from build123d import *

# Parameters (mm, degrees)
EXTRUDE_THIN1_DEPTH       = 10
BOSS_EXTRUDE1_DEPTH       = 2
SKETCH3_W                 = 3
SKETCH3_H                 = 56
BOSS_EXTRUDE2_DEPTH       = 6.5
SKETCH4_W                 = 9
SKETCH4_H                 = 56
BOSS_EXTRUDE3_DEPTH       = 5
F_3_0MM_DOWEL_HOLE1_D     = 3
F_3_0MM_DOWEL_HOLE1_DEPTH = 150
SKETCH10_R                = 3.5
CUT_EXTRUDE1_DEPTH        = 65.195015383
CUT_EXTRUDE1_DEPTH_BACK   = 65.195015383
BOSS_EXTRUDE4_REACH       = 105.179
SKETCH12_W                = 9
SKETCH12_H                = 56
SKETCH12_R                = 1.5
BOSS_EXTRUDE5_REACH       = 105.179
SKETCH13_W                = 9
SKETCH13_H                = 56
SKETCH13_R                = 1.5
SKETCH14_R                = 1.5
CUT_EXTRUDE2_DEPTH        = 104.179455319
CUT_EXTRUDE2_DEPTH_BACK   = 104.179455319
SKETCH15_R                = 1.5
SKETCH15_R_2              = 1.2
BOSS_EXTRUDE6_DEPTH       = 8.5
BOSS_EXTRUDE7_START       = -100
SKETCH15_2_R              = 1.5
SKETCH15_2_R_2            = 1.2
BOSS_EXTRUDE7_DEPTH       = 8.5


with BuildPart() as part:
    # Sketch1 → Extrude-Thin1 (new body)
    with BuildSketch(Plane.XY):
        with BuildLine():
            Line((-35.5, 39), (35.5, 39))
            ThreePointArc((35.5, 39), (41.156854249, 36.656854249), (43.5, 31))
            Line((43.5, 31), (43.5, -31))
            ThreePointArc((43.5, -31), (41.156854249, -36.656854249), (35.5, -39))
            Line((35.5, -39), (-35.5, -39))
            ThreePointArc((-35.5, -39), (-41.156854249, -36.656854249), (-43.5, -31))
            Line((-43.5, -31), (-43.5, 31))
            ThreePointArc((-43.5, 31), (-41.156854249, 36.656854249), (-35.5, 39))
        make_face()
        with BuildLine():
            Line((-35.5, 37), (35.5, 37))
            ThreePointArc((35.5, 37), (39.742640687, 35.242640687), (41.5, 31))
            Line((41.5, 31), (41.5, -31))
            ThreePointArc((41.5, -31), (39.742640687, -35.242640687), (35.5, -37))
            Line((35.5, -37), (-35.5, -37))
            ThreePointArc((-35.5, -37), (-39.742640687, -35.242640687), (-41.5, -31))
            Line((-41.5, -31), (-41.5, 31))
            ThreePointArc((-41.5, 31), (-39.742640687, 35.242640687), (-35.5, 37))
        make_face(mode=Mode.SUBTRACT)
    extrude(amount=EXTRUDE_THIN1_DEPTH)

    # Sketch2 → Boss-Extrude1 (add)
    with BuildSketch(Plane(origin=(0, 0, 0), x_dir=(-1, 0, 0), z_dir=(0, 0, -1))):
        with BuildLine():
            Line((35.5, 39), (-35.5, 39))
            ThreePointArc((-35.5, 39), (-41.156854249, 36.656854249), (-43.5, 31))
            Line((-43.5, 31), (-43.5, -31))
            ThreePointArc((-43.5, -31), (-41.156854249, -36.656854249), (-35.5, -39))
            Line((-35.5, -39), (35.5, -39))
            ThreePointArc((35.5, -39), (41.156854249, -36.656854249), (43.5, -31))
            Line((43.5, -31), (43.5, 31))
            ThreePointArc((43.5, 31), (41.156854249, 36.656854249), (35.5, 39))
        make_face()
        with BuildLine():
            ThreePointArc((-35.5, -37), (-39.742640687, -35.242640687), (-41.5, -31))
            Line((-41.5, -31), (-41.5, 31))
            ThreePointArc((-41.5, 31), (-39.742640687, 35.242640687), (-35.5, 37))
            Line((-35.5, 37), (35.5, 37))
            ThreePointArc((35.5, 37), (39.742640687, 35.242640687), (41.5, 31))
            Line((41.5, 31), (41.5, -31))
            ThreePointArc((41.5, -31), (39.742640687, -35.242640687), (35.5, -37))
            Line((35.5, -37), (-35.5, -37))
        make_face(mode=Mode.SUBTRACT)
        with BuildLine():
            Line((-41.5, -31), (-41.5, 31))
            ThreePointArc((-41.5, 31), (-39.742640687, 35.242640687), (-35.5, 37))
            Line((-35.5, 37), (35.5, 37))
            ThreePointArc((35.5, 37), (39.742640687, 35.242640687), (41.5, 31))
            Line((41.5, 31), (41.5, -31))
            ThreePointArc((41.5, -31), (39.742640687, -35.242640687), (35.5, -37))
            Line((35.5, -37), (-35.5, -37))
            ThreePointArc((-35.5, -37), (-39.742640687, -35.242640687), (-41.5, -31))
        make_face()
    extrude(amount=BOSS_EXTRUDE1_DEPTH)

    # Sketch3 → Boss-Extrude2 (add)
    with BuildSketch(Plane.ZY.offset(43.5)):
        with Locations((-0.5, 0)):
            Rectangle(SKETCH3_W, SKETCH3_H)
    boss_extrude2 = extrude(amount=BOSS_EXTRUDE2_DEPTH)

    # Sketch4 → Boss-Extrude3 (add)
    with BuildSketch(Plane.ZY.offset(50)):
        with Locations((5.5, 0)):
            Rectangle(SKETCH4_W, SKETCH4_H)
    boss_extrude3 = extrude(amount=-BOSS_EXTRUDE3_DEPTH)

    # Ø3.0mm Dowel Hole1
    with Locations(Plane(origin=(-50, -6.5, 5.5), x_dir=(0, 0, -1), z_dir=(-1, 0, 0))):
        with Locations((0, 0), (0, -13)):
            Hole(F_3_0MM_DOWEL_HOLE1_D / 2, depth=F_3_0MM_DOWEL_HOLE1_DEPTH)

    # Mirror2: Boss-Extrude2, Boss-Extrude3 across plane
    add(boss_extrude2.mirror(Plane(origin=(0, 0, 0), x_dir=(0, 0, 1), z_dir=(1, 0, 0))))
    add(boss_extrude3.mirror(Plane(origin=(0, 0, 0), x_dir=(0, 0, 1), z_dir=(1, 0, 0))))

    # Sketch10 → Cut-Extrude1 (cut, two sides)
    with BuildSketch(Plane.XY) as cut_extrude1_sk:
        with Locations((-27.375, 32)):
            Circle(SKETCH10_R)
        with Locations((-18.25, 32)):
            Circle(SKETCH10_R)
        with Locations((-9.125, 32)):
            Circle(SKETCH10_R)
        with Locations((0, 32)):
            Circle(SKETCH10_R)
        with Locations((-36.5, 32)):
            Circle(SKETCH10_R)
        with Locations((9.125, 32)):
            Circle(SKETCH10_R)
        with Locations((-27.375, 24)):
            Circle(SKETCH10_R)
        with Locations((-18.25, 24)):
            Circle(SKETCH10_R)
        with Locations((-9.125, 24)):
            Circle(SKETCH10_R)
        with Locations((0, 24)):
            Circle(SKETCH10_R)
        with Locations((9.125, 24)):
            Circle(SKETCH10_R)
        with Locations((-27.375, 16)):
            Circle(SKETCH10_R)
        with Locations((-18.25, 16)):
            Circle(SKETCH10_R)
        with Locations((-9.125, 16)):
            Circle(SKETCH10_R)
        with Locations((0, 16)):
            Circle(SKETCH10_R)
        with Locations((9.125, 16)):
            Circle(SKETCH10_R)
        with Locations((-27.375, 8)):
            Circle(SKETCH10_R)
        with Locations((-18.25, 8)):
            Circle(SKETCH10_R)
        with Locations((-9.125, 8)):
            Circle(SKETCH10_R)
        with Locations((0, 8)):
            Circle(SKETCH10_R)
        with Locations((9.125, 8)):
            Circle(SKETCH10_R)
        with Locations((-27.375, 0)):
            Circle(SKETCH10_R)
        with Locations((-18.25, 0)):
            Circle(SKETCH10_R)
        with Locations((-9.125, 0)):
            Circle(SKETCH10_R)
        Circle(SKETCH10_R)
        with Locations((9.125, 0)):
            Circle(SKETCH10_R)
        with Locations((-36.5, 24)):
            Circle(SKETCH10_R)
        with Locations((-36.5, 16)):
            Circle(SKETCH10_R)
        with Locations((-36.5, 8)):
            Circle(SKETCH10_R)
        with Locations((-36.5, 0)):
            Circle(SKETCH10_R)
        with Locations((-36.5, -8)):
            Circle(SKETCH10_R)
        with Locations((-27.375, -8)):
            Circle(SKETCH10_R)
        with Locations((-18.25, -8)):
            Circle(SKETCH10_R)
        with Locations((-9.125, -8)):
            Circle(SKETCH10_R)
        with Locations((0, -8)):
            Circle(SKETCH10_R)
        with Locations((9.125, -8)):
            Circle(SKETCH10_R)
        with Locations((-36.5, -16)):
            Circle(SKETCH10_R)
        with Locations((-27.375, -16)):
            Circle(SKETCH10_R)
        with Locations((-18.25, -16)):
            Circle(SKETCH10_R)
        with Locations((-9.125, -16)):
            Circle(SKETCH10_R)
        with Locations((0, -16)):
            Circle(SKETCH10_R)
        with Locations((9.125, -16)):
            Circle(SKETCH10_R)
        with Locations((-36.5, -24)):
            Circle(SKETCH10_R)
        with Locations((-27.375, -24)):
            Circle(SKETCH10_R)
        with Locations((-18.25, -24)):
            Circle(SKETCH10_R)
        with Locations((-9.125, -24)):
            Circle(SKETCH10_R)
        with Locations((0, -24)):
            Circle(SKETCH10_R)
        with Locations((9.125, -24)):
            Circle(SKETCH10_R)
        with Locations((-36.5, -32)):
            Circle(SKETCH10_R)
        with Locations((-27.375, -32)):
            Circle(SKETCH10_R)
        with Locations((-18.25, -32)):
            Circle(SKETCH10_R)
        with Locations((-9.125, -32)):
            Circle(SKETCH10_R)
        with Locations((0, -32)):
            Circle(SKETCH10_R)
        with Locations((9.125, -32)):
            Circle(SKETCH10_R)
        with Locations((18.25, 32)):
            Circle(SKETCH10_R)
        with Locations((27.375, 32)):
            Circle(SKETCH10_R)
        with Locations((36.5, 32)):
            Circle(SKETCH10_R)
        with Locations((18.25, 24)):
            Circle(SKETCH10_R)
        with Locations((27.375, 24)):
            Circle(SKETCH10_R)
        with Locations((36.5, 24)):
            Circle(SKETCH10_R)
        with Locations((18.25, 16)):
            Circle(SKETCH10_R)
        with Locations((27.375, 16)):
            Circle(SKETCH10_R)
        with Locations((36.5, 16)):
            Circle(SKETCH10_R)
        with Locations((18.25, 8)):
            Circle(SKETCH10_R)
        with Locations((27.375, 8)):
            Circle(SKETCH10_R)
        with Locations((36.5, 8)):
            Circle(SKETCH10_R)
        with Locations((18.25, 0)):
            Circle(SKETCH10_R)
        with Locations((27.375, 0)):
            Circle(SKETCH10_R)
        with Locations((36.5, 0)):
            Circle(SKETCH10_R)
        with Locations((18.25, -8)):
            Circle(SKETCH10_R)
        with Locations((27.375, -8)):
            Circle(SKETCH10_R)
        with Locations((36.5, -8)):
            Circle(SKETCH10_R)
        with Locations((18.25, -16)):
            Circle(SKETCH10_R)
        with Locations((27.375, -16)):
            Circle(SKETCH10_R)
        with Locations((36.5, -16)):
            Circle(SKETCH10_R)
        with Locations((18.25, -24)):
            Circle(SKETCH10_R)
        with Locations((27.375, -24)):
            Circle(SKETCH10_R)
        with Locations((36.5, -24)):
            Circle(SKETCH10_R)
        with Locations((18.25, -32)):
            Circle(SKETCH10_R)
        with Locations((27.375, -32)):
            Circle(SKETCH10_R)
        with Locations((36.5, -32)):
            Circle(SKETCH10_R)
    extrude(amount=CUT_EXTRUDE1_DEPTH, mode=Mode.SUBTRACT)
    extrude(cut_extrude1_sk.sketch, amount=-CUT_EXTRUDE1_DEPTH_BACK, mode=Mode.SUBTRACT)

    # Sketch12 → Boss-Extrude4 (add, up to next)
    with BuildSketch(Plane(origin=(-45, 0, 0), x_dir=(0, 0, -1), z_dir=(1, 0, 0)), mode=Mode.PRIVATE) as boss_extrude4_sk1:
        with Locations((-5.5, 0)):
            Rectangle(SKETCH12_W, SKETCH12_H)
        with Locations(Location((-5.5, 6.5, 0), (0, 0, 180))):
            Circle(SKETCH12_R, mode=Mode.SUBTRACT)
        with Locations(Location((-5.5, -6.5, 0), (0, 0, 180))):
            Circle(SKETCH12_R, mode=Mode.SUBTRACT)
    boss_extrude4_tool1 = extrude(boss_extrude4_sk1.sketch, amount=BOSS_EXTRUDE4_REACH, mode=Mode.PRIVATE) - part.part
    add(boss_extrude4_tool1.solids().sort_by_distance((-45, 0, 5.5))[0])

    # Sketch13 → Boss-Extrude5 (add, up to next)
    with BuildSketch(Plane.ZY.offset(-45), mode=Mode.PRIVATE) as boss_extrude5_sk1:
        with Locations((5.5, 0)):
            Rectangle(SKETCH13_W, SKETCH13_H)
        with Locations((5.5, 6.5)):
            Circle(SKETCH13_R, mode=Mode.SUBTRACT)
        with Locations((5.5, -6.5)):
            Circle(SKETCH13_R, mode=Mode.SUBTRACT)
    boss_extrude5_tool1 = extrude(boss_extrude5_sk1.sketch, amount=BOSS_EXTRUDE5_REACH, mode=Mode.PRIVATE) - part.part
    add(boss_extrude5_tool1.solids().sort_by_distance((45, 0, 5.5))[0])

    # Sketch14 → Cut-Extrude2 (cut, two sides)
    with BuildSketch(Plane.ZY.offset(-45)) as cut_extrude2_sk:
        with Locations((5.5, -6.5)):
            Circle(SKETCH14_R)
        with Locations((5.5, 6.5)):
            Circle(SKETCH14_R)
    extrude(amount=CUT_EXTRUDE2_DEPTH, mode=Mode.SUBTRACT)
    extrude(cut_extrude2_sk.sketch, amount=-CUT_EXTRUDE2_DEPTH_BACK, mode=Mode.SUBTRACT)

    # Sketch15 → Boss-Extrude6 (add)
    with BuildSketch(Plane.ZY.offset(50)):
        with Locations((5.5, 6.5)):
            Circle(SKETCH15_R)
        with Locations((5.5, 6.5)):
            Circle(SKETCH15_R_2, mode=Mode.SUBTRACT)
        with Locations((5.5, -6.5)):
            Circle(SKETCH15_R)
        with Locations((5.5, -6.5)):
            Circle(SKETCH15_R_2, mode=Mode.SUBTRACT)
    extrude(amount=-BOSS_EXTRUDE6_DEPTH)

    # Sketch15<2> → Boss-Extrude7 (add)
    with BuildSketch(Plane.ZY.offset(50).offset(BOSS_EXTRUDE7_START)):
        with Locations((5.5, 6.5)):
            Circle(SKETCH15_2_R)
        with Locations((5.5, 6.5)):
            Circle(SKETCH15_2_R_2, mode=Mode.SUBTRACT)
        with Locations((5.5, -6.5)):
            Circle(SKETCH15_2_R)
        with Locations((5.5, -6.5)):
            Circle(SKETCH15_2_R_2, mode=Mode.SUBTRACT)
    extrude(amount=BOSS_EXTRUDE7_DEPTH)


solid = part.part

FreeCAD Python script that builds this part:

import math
import FreeCAD as App
import Part
import Sketcher
from FreeCAD import Vector


def add_polygon(sketch, points):
    """Adds a closed chain of lines whose ends are joined by coincident constraints."""
    first, n = sketch.GeometryCount, len(points)
    for a, b in zip(points, points[1:] + points[:1]):
        sketch.addGeometry(Part.LineSegment(App.Vector(*a, 0), App.Vector(*b, 0)), False)
    for i in range(n):
        sketch.addConstraint(Sketcher.Constraint("Coincident", first + i, 2, first + (i + 1) % n, 1))

doc = App.newDocument("Part")
body = doc.addObject("PartDesign::Body", "Body")

# Sketch on XY plane
sketch1 = body.newObject("Sketcher::SketchObject", "Sketch")
sketch1.AttachmentSupport = (doc.getObject("XY_Plane"), [""])
sketch1.MapMode = "FlatFace"
sketch1.addGeometry([
    Part.LineSegment(Vector(35.5, 39, 0), Vector(-35.5, 39, 0)),  # 0
    Part.ArcOfCircle(Part.Circle(Vector(-35.5, 31, 0), Vector(0, 0, 1), 8), math.radians(90), math.radians(180)),  # 1
    Part.LineSegment(Vector(-43.5, 31, 0), Vector(-43.5, -31, 0)),  # 2
    Part.ArcOfCircle(Part.Circle(Vector(-35.5, -31, 0), Vector(0, 0, 1), 8), math.radians(-180), math.radians(-90)),  # 3
    Part.LineSegment(Vector(-35.5, -39, 0), Vector(35.5, -39, 0)),  # 4
    Part.ArcOfCircle(Part.Circle(Vector(35.5, -31, 0), Vector(0, 0, 1), 8), math.radians(-90), math.radians(0)),  # 5
    Part.LineSegment(Vector(43.5, -31, 0), Vector(43.5, 31, 0)),  # 6
    Part.ArcOfCircle(Part.Circle(Vector(35.5, 31, 0), Vector(0, 0, 1), 8), math.radians(0), math.radians(90)),  # 7
    Part.LineSegment(Vector(-35.5, 37, 0), Vector(35.5, 37, 0)),  # 8
    Part.ArcOfCircle(Part.Circle(Vector(35.5, 31, 0), Vector(0, 0, 1), 6), math.radians(0), math.radians(90)),  # 9
    Part.LineSegment(Vector(41.5, 31, 0), Vector(41.5, -31, 0)),  # 10
    Part.ArcOfCircle(Part.Circle(Vector(35.5, -31, 0), Vector(0, 0, 1), 6), math.radians(-90), math.radians(0)),  # 11
    Part.LineSegment(Vector(35.5, -37, 0), Vector(-35.5, -37, 0)),  # 12
    Part.ArcOfCircle(Part.Circle(Vector(-35.5, -31, 0), Vector(0, 0, 1), 6), math.radians(180), math.radians(270)),  # 13
    Part.LineSegment(Vector(-41.5, -31, 0), Vector(-41.5, 31, 0)),  # 14
    Part.ArcOfCircle(Part.Circle(Vector(-35.5, 31, 0), Vector(0, 0, 1), 6), math.radians(90), math.radians(180)),  # 15
], False)
sketch1.addConstraint([
    Sketcher.Constraint("Tangent", 0, 2, 1, 1),
    Sketcher.Constraint("Tangent", 1, 2, 2, 1),
    Sketcher.Constraint("Tangent", 2, 2, 3, 1),
    Sketcher.Constraint("Tangent", 3, 2, 4, 1),
    Sketcher.Constraint("Tangent", 4, 2, 5, 1),
    Sketcher.Constraint("Tangent", 5, 2, 6, 1),
    Sketcher.Constraint("Tangent", 6, 2, 7, 1),
    Sketcher.Constraint("Tangent", 7, 2, 0, 1),
    Sketcher.Constraint("Tangent", 8, 2, 9, 2),
    Sketcher.Constraint("Tangent", 9, 1, 10, 1),
    Sketcher.Constraint("Tangent", 10, 2, 11, 2),
    Sketcher.Constraint("Tangent", 11, 1, 12, 1),
    Sketcher.Constraint("Tangent", 12, 2, 13, 2),
    Sketcher.Constraint("Tangent", 13, 1, 14, 1),
    Sketcher.Constraint("Tangent", 14, 2, 15, 2),
    Sketcher.Constraint("Tangent", 15, 1, 8, 1),
    Sketcher.Constraint("Horizontal", 0),
    Sketcher.Constraint("Vertical", 2),
    Sketcher.Constraint("Horizontal", 4),
    Sketcher.Constraint("Vertical", 6),
    Sketcher.Constraint("Horizontal", 8),
    Sketcher.Constraint("Vertical", 10),
    Sketcher.Constraint("Horizontal", 12),
    Sketcher.Constraint("Vertical", 14),
    Sketcher.Constraint("Coincident", 9, 3, 7, 3),
    Sketcher.Constraint("Coincident", 11, 3, 5, 3),
    Sketcher.Constraint("Coincident", 13, 3, 3, 3),
    Sketcher.Constraint("Equal", 1, 3),
    Sketcher.Constraint("Equal", 3, 5),
    Sketcher.Constraint("Equal", 5, 7),
    Sketcher.Constraint("Equal", 13, 15),
    Sketcher.Constraint("Symmetric", 1, 3, 5, 3, -1, 1),
    Sketcher.Constraint("Radius", 1, 8.0),
    Sketcher.Constraint("Radius", 9, 6.0),
    Sketcher.Constraint("DistanceX", 0, 2, 0, 1, 71.0),
    Sketcher.Constraint("DistanceY", 2, 2, 2, 1, 62.0),
])
pad1 = body.newObject("PartDesign::Pad", "Pad")
pad1.Profile = sketch1
pad1.Length = 10

# Sketch on XY plane
sketch2 = body.newObject("Sketcher::SketchObject", "Sketch001")
sketch2.AttachmentSupport = (doc.getObject("XY_Plane"), [""])
sketch2.MapMode = "FlatFace"
sketch2.addGeometry([
    Part.LineSegment(Vector(-35.5, 39, 0), Vector(35.5, 39, 0)),  # 0
    Part.ArcOfCircle(Part.Circle(Vector(35.5, 31, 0), Vector(0, 0, 1), 8), math.radians(0), math.radians(90)),  # 1
    Part.LineSegment(Vector(43.5, 31, 0), Vector(43.5, -31, 0)),  # 2
    Part.ArcOfCircle(Part.Circle(Vector(35.5, -31, 0), Vector(0, 0, 1), 8), math.radians(-90), math.radians(0)),  # 3
    Part.LineSegment(Vector(35.5, -39, 0), Vector(-35.5, -39, 0)),  # 4
    Part.ArcOfCircle(Part.Circle(Vector(-35.5, -31, 0), Vector(0, 0, 1), 8), math.radians(-180), math.radians(-90)),  # 5
    Part.LineSegment(Vector(-43.5, -31, 0), Vector(-43.5, 31, 0)),  # 6
    Part.ArcOfCircle(Part.Circle(Vector(-35.5, 31, 0), Vector(0, 0, 1), 8), math.radians(90), math.radians(180)),  # 7
], False)
sketch2.addConstraint([
    Sketcher.Constraint("Tangent", 0, 2, 1, 2),
    Sketcher.Constraint("Tangent", 1, 1, 2, 1),
    Sketcher.Constraint("Tangent", 2, 2, 3, 2),
    Sketcher.Constraint("Tangent", 3, 1, 4, 1),
    Sketcher.Constraint("Tangent", 4, 2, 5, 2),
    Sketcher.Constraint("Tangent", 5, 1, 6, 1),
    Sketcher.Constraint("Tangent", 6, 2, 7, 2),
    Sketcher.Constraint("Tangent", 7, 1, 0, 1),
    Sketcher.Constraint("Horizontal", 0),
    Sketcher.Constraint("Vertical", 2),
    Sketcher.Constraint("Horizontal", 4),
    Sketcher.Constraint("Vertical", 6),
    Sketcher.Constraint("Equal", 1, 3),
    Sketcher.Constraint("Equal", 3, 5),
    Sketcher.Constraint("Equal", 5, 7),
    Sketcher.Constraint("Symmetric", 1, 3, 5, 3, -1, 1),
    Sketcher.Constraint("Radius", 1, 8.0),
    Sketcher.Constraint("DistanceX", 0, 1, 0, 2, 71.0),
    Sketcher.Constraint("DistanceY", 2, 2, 2, 1, 62.0),
])
pad2 = body.newObject("PartDesign::Pad", "Pad001")
pad2.Profile = sketch2
pad2.Length = 2
pad2.Reversed = True

# Sketch on YZ plane
sketch3 = body.newObject("Sketcher::SketchObject", "Sketch002")
sketch3.AttachmentSupport = (doc.getObject("YZ_Plane"), [""])
sketch3.MapMode = "FlatFace"
sketch3.AttachmentOffset = App.Placement(Vector(0, 0, -43.5), App.Rotation())
add_polygon(sketch3, [(28, -2), (-28, -2), (-28, 1), (28, 1)])  # lines 0-3
sketch3.addConstraint([
    Sketcher.Constraint("Horizontal", 0),
    Sketcher.Constraint("Vertical", 1),
    Sketcher.Constraint("Horizontal", 2),
    Sketcher.Constraint("Vertical", 3),
    Sketcher.Constraint("DistanceX", 0, 2, 0, 1, 56.0),
    Sketcher.Constraint("DistanceY", 1, 1, 1, 2, 3.0),
    Sketcher.Constraint("DistanceX", 0, 2, -1, 1, 28.0),
    Sketcher.Constraint("DistanceY", 0, 2, -1, 1, 2.0),
])
pad3 = body.newObject("PartDesign::Pad", "Pad002")
pad3.Profile = sketch3
pad3.Length = 6.5
pad3.Reversed = True

# Sketch on YZ plane
sketch4 = body.newObject("Sketcher::SketchObject", "Sketch003")
sketch4.AttachmentSupport = (doc.getObject("YZ_Plane"), [""])
sketch4.MapMode = "FlatFace"
sketch4.AttachmentOffset = App.Placement(Vector(0, 0, -50), App.Rotation())
add_polygon(sketch4, [(28, 1), (-28, 1), (-28, 10), (28, 10)])  # lines 0-3
sketch4.addConstraint([
    Sketcher.Constraint("Horizontal", 0),
    Sketcher.Constraint("Vertical", 1),
    Sketcher.Constraint("Horizontal", 2),
    Sketcher.Constraint("Vertical", 3),
    Sketcher.Constraint("DistanceX", 0, 2, 0, 1, 56.0),
    Sketcher.Constraint("DistanceY", 1, 1, 1, 2, 9.0),
    Sketcher.Constraint("DistanceX", 0, 2, -1, 1, 28.0),
    Sketcher.Constraint("DistanceY", -1, 1, 0, 2, 1.0),
])
pad4 = body.newObject("PartDesign::Pad", "Pad003")
pad4.Profile = sketch4
pad4.Length = 5

# Sketch on YZ plane
sketch5 = body.newObject("Sketcher::SketchObject", "Sketch004")
sketch5.AttachmentSupport = (doc.getObject("YZ_Plane"), [""])
sketch5.MapMode = "FlatFace"
sketch5.AttachmentOffset = App.Placement(Vector(0, 0, -50), App.Rotation())
sketch5.addGeometry([
    Part.Circle(Vector(-6.5, 5.5, 0), Vector(0, 0, 1), 1.5),
    Part.Circle(Vector(6.5, 5.5, 0), Vector(0, 0, 1), 1.5),
], False)
sketch5.addConstraint([
    Sketcher.Constraint("Equal", 0, 1),
    Sketcher.Constraint("Symmetric", 0, 3, 1, 3, -2),
    Sketcher.Constraint("Diameter", 0, 3.0),
    Sketcher.Constraint("DistanceX", 0, 3, 1, 3, 13.0),
    Sketcher.Constraint("DistanceY", -1, 1, 0, 3, 5.5),
])
doc.recompute()
hole = body.newObject("PartDesign::Hole", "Hole")
hole.Profile = sketch5
hole.ThreadType = "None"
hole.Diameter = 3
hole.DepthType = "Dimension"
hole.Depth = 150
hole.DrillPoint = "Flat"
hole.Reversed = True
doc.recompute()

mirrored = body.newObject("PartDesign::Mirrored", "Mirrored")
mirrored.Originals = [pad3, pad4]
mirrored.MirrorPlane = (doc.getObject("YZ_Plane"), [""])
body.Tip = mirrored

# Sketch on XY plane
sketch6 = body.newObject("Sketcher::SketchObject", "Sketch005")
sketch6.AttachmentSupport = (doc.getObject("XY_Plane"), [""])
sketch6.MapMode = "FlatFace"
sketch6.addGeometry([
    Part.Circle(Vector(-27.375, 32, 0), Vector(0, 0, 1), 3.5),  # 0
    Part.Circle(Vector(-18.25, 32, 0), Vector(0, 0, 1), 3.5),  # 1
    Part.Circle(Vector(-9.125, 32, 0), Vector(0, 0, 1), 3.5),  # 2
    Part.Circle(Vector(0, 32, 0), Vector(0, 0, 1), 3.5),  # 3
    Part.Circle(Vector(-36.5, 32, 0), Vector(0, 0, 1), 3.5),  # 4
    Part.Circle(Vector(9.125, 32, 0), Vector(0, 0, 1), 3.5),  # 5
    Part.Circle(Vector(-27.375, 24, 0), Vector(0, 0, 1), 3.5),  # 6
    Part.Circle(Vector(-18.25, 24, 0), Vector(0, 0, 1), 3.5),  # 7
    Part.Circle(Vector(-9.125, 24, 0), Vector(0, 0, 1), 3.5),  # 8
    Part.Circle(Vector(0, 24, 0), Vector(0, 0, 1), 3.5),  # 9
    Part.Circle(Vector(9.125, 24, 0), Vector(0, 0, 1), 3.5),  # 10
    Part.Circle(Vector(-27.375, 16, 0), Vector(0, 0, 1), 3.5),  # 11
    Part.Circle(Vector(-18.25, 16, 0), Vector(0, 0, 1), 3.5),  # 12
    Part.Circle(Vector(-9.125, 16, 0), Vector(0, 0, 1), 3.5),  # 13
    Part.Circle(Vector(0, 16, 0), Vector(0, 0, 1), 3.5),  # 14
    Part.Circle(Vector(9.125, 16, 0), Vector(0, 0, 1), 3.5),  # 15
    Part.Circle(Vector(-27.375, 8, 0), Vector(0, 0, 1), 3.5),  # 16
    Part.Circle(Vector(-18.25, 8, 0), Vector(0, 0, 1), 3.5),  # 17
    Part.Circle(Vector(-9.125, 8, 0), Vector(0, 0, 1), 3.5),  # 18
    Part.Circle(Vector(0, 8, 0), Vector(0, 0, 1), 3.5),  # 19
    Part.Circle(Vector(9.125, 8, 0), Vector(0, 0, 1), 3.5),  # 20
    Part.Circle(Vector(-27.375, 0, 0), Vector(0, 0, 1), 3.5),  # 21
    Part.Circle(Vector(-18.25, 0, 0), Vector(0, 0, 1), 3.5),  # 22
    Part.Circle(Vector(-9.125, 0, 0), Vector(0, 0, 1), 3.5),  # 23
    Part.Circle(Vector(0, 0, 0), Vector(0, 0, 1), 3.5),  # 24
    Part.Circle(Vector(9.125, 0, 0), Vector(0, 0, 1), 3.5),  # 25
    Part.Circle(Vector(-36.5, 24, 0), Vector(0, 0, 1), 3.5),  # 26
    Part.Circle(Vector(-36.5, 16, 0), Vector(0, 0, 1), 3.5),  # 27
    Part.Circle(Vector(-36.5, 8, 0), Vector(0, 0, 1), 3.5),  # 28
    Part.Circle(Vector(-36.5, 0, 0), Vector(0, 0, 1), 3.5),  # 29
    Part.Circle(Vector(-36.5, -8, 0), Vector(0, 0, 1), 3.5),  # 30
    Part.Circle(Vector(-27.375, -8, 0), Vector(0, 0, 1), 3.5),  # 31
    Part.Circle(Vector(-18.25, -8, 0), Vector(0, 0, 1), 3.5),  # 32
    Part.Circle(Vector(-9.125, -8, 0), Vector(0, 0, 1), 3.5),  # 33
    Part.Circle(Vector(0, -8, 0), Vector(0, 0, 1), 3.5),  # 34
    Part.Circle(Vector(9.125, -8, 0), Vector(0, 0, 1), 3.5),  # 35
    Part.Circle(Vector(-36.5, -16, 0), Vector(0, 0, 1), 3.5),  # 36
    Part.Circle(Vector(-27.375, -16, 0), Vector(0, 0, 1), 3.5),  # 37
    Part.Circle(Vector(-18.25, -16, 0), Vector(0, 0, 1), 3.5),  # 38
    Part.Circle(Vector(-9.125, -16, 0), Vector(0, 0, 1), 3.5),  # 39
    Part.Circle(Vector(0, -16, 0), Vector(0, 0, 1), 3.5),  # 40
    Part.Circle(Vector(9.125, -16, 0), Vector(0, 0, 1), 3.5),  # 41
    Part.Circle(Vector(-36.5, -24, 0), Vector(0, 0, 1), 3.5),  # 42
    Part.Circle(Vector(-27.375, -24, 0), Vector(0, 0, 1), 3.5),  # 43
    Part.Circle(Vector(-18.25, -24, 0), Vector(0, 0, 1), 3.5),  # 44
    Part.Circle(Vector(-9.125, -24, 0), Vector(0, 0, 1), 3.5),  # 45
    Part.Circle(Vector(0, -24, 0), Vector(0, 0, 1), 3.5),  # 46
    Part.Circle(Vector(9.125, -24, 0), Vector(0, 0, 1), 3.5),  # 47
    Part.Circle(Vector(-36.5, -32, 0), Vector(0, 0, 1), 3.5),  # 48
    Part.Circle(Vector(-27.375, -32, 0), Vector(0, 0, 1), 3.5),  # 49
    Part.Circle(Vector(-18.25, -32, 0), Vector(0, 0, 1), 3.5),  # 50
    Part.Circle(Vector(-9.125, -32, 0), Vector(0, 0, 1), 3.5),  # 51
    Part.Circle(Vector(0, -32, 0), Vector(0, 0, 1), 3.5),  # 52
    Part.Circle(Vector(9.125, -32, 0), Vector(0, 0, 1), 3.5),  # 53
    Part.Circle(Vector(18.25, 32, 0), Vector(0, 0, 1), 3.5),  # 54
    Part.Circle(Vector(27.375, 32, 0), Vector(0, 0, 1), 3.5),  # 55
    Part.Circle(Vector(36.5, 32, 0), Vector(0, 0, 1), 3.5),  # 56
    Part.Circle(Vector(18.25, 24, 0), Vector(0, 0, 1), 3.5),  # 57
    Part.Circle(Vector(27.375, 24, 0), Vector(0, 0, 1), 3.5),  # 58
    Part.Circle(Vector(36.5, 24, 0), Vector(0, 0, 1), 3.5),  # 59
    Part.Circle(Vector(18.25, 16, 0), Vector(0, 0, 1), 3.5),  # 60
    Part.Circle(Vector(27.375, 16, 0), Vector(0, 0, 1), 3.5),  # 61
    Part.Circle(Vector(36.5, 16, 0), Vector(0, 0, 1), 3.5),  # 62
    Part.Circle(Vector(18.25, 8, 0), Vector(0, 0, 1), 3.5),  # 63
    Part.Circle(Vector(27.375, 8, 0), Vector(0, 0, 1), 3.5),  # 64
    Part.Circle(Vector(36.5, 8, 0), Vector(0, 0, 1), 3.5),  # 65
    Part.Circle(Vector(18.25, 0, 0), Vector(0, 0, 1), 3.5),  # 66
    Part.Circle(Vector(27.375, 0, 0), Vector(0, 0, 1), 3.5),  # 67
    Part.Circle(Vector(36.5, 0, 0), Vector(0, 0, 1), 3.5),  # 68
    Part.Circle(Vector(18.25, -8, 0), Vector(0, 0, 1), 3.5),  # 69
    Part.Circle(Vector(27.375, -8, 0), Vector(0, 0, 1), 3.5),  # 70
    Part.Circle(Vector(36.5, -8, 0), Vector(0, 0, 1), 3.5),  # 71
    Part.Circle(Vector(18.25, -16, 0), Vector(0, 0, 1), 3.5),  # 72
    Part.Circle(Vector(27.375, -16, 0), Vector(0, 0, 1), 3.5),  # 73
    Part.Circle(Vector(36.5, -16, 0), Vector(0, 0, 1), 3.5),  # 74
    Part.Circle(Vector(18.25, -24, 0), Vector(0, 0, 1), 3.5),  # 75
    Part.Circle(Vector(27.375, -24, 0), Vector(0, 0, 1), 3.5),  # 76
    Part.Circle(Vector(36.5, -24, 0), Vector(0, 0, 1), 3.5),  # 77
    Part.Circle(Vector(18.25, -32, 0), Vector(0, 0, 1), 3.5),  # 78
    Part.Circle(Vector(27.375, -32, 0), Vector(0, 0, 1), 3.5),  # 79
    Part.Circle(Vector(36.5, -32, 0), Vector(0, 0, 1), 3.5),  # 80
], False)
sketch6.addConstraint([
    Sketcher.Constraint("Coincident", 24, 3, -1, 1),
    Sketcher.Constraint("Equal", 0, 1),
    Sketcher.Constraint("Equal", 1, 2),
    Sketcher.Constraint("Equal", 2, 3),
    Sketcher.Constraint("Equal", 3, 4),
    Sketcher.Constraint("Equal", 4, 5),
    Sketcher.Constraint("Equal", 5, 6),
    Sketcher.Constraint("Equal", 6, 7),
    Sketcher.Constraint("Equal", 7, 8),
    Sketcher.Constraint("Equal", 8, 9),
    Sketcher.Constraint("Equal", 9, 10),
    Sketcher.Constraint("Equal", 10, 11),
    Sketcher.Constraint("Equal", 11, 12),
    Sketcher.Constraint("Equal", 12, 13),
    Sketcher.Constraint("Equal", 13, 14),
    Sketcher.Constraint("Equal", 14, 15),
    Sketcher.Constraint("Equal", 15, 16),
    Sketcher.Constraint("Equal", 16, 17),
    Sketcher.Constraint("Equal", 17, 18),
    Sketcher.Constraint("Equal", 18, 19),
    Sketcher.Constraint("Equal", 19, 20),
    Sketcher.Constraint("Equal", 20, 21),
    Sketcher.Constraint("Equal", 21, 22),
    Sketcher.Constraint("Equal", 22, 23),
    Sketcher.Constraint("Equal", 23, 24),
    Sketcher.Constraint("Equal", 24, 25),
    Sketcher.Constraint("Equal", 25, 26),
    Sketcher.Constraint("Equal", 26, 27),
    Sketcher.Constraint("Equal", 27, 28),
    Sketcher.Constraint("Equal", 28, 29),
    Sketcher.Constraint("Equal", 29, 30),
    Sketcher.Constraint("Equal", 30, 31),
    Sketcher.Constraint("Equal", 31, 32),
    Sketcher.Constraint("Equal", 32, 33),
    Sketcher.Constraint("Equal", 33, 34),
    Sketcher.Constraint("Equal", 34, 35),
    Sketcher.Constraint("Equal", 35, 36),
    Sketcher.Constraint("Equal", 36, 37),
    Sketcher.Constraint("Equal", 37, 38),
    Sketcher.Constraint("Equal", 38, 39),
    Sketcher.Constraint("Equal", 39, 40),
    Sketcher.Constraint("Equal", 40, 41),
    Sketcher.Constraint("Equal", 41, 42),
    Sketcher.Constraint("Equal", 42, 43),
    Sketcher.Constraint("Equal", 43, 44),
    Sketcher.Constraint("Equal", 44, 45),
    Sketcher.Constraint("Equal", 45, 46),
    Sketcher.Constraint("Equal", 46, 47),
    Sketcher.Constraint("Equal", 47, 48),
    Sketcher.Constraint("Equal", 48, 49),
    Sketcher.Constraint("Equal", 49, 50),
    Sketcher.Constraint("Equal", 50, 51),
    Sketcher.Constraint("Equal", 51, 52),
    Sketcher.Constraint("Equal", 52, 53),
    Sketcher.Constraint("Equal", 53, 54),
    Sketcher.Constraint("Equal", 54, 55),
    Sketcher.Constraint("Equal", 55, 56),
    Sketcher.Constraint("Equal", 56, 57),
    Sketcher.Constraint("Equal", 57, 58),
    Sketcher.Constraint("Equal", 58, 59),
    Sketcher.Constraint("Equal", 59, 60),
    Sketcher.Constraint("Equal", 60, 61),
    Sketcher.Constraint("Equal", 61, 62),
    Sketcher.Constraint("Equal", 62, 63),
    Sketcher.Constraint("Equal", 63, 64),
    Sketcher.Constraint("Equal", 64, 65),
    Sketcher.Constraint("Equal", 65, 66),
    Sketcher.Constraint("Equal", 66, 67),
    Sketcher.Constraint("Equal", 67, 68),
    Sketcher.Constraint("Equal", 68, 69),
    Sketcher.Constraint("Equal", 69, 70),
    Sketcher.Constraint("Equal", 70, 71),
    Sketcher.Constraint("Equal", 71, 72),
    Sketcher.Constraint("Equal", 72, 73),
    Sketcher.Constraint("Equal", 73, 74),
    Sketcher.Constraint("Equal", 74, 75),
    Sketcher.Constraint("Equal", 75, 76),
    Sketcher.Constraint("Equal", 76, 77),
    Sketcher.Constraint("Equal", 77, 78),
    Sketcher.Constraint("Equal", 78, 79),
    Sketcher.Constraint("Equal", 79, 80),
    Sketcher.Constraint("Symmetric", 23, 3, 25, 3, -1, 1),
    Sketcher.Constraint("Symmetric", 20, 3, 33, 3, -1, 1),
    Sketcher.Constraint("Symmetric", 19, 3, 34, 3, -1, 1),
    Sketcher.Constraint("Symmetric", 18, 3, 35, 3, -1, 1),
    Sketcher.Constraint("Symmetric", 15, 3, 39, 3, -1, 1),
    Sketcher.Constraint("Symmetric", 14, 3, 40, 3, -1, 1),
    Sketcher.Constraint("Symmetric", 13, 3, 41, 3, -1, 1),
    Sketcher.Constraint("Symmetric", 10, 3, 45, 3, -1, 1),
    Sketcher.Constraint("Symmetric", 9, 3, 46, 3, -1, 1),
    Sketcher.Constraint("Symmetric", 8, 3, 47, 3, -1, 1),
    Sketcher.Constraint("Symmetric", 5, 3, 51, 3, -1, 1),
    Sketcher.Constraint("Symmetric", 3, 3, 52, 3, -1, 1),
    Sketcher.Constraint("Symmetric", 2, 3, 53, 3, -1, 1),
    Sketcher.Constraint("Symmetric", 50, 3, 54, 3, -1, 1),
    Sketcher.Constraint("Symmetric", 49, 3, 55, 3, -1, 1),
    Sketcher.Constraint("Symmetric", 48, 3, 56, 3, -1, 1),
    Sketcher.Constraint("Symmetric", 44, 3, 57, 3, -1, 1),
    Sketcher.Constraint("Symmetric", 43, 3, 58, 3, -1, 1),
    Sketcher.Constraint("Symmetric", 42, 3, 59, 3, -1, 1),
    Sketcher.Constraint("Symmetric", 38, 3, 60, 3, -1, 1),
    Sketcher.Constraint("Symmetric", 37, 3, 61, 3, -1, 1),
    Sketcher.Constraint("Symmetric", 36, 3, 62, 3, -1, 1),
    Sketcher.Constraint("Symmetric", 32, 3, 63, 3, -1, 1),
    Sketcher.Constraint("Symmetric", 31, 3, 64, 3, -1, 1),
    Sketcher.Constraint("Symmetric", 30, 3, 65, 3, -1, 1),
    Sketcher.Constraint("Symmetric", 22, 3, 66, 3, -1, 1),
    Sketcher.Constraint("Symmetric", 21, 3, 67, 3, -1, 1),
    Sketcher.Constraint("Symmetric", 29, 3, 68, 3, -1, 1),
    Sketcher.Constraint("Symmetric", 17, 3, 69, 3, -1, 1),
    Sketcher.Constraint("Symmetric", 16, 3, 70, 3, -1, 1),
    Sketcher.Constraint("Symmetric", 28, 3, 71, 3, -1, 1),
    Sketcher.Constraint("Symmetric", 12, 3, 72, 3, -1, 1),
    Sketcher.Constraint("Symmetric", 11, 3, 73, 3, -1, 1),
    Sketcher.Constraint("Symmetric", 27, 3, 74, 3, -1, 1),
    Sketcher.Constraint("Symmetric", 7, 3, 75, 3, -1, 1),
    Sketcher.Constraint("Symmetric", 6, 3, 76, 3, -1, 1),
    Sketcher.Constraint("Symmetric", 26, 3, 77, 3, -1, 1),
    Sketcher.Constraint("Symmetric", 1, 3, 78, 3, -1, 1),
    Sketcher.Constraint("Symmetric", 0, 3, 79, 3, -1, 1),
    Sketcher.Constraint("Symmetric", 4, 3, 80, 3, -1, 1),
    Sketcher.Constraint("Symmetric", 2, 3, 5, 3, -2),
    Sketcher.Constraint("Symmetric", 8, 3, 10, 3, -2),
    Sketcher.Constraint("Symmetric", 13, 3, 15, 3, -2),
    Sketcher.Constraint("Symmetric", 18, 3, 20, 3, -2),
    Sketcher.Constraint("Symmetric", 1, 3, 54, 3, -2),
    Sketcher.Constraint("Symmetric", 0, 3, 55, 3, -2),
    Sketcher.Constraint("Symmetric", 4, 3, 56, 3, -2),
    Sketcher.Constraint("Symmetric", 7, 3, 57, 3, -2),
    Sketcher.Constraint("Symmetric", 6, 3, 58, 3, -2),
    Sketcher.Constraint("Symmetric", 26, 3, 59, 3, -2),
    Sketcher.Constraint("Symmetric", 12, 3, 60, 3, -2),
    Sketcher.Constraint("Symmetric", 11, 3, 61, 3, -2),
    Sketcher.Constraint("Symmetric", 27, 3, 62, 3, -2),
    Sketcher.Constraint("Symmetric", 17, 3, 63, 3, -2),
    Sketcher.Constraint("Symmetric", 16, 3, 64, 3, -2),
    Sketcher.Constraint("Symmetric", 28, 3, 65, 3, -2),
    Sketcher.Constraint("PointOnObject", 3, 3, -2),
    Sketcher.Constraint("PointOnObject", 9, 3, -2),
    Sketcher.Constraint("PointOnObject", 14, 3, -2),
    Sketcher.Constraint("PointOnObject", 19, 3, -2),
    Sketcher.Constraint("PointOnObject", 21, 3, -1),
    Sketcher.Constraint("PointOnObject", 22, 3, -1),
    Sketcher.Constraint("PointOnObject", 23, 3, -1),
    Sketcher.Constraint("PointOnObject", 29, 3, -1),
    Sketcher.Constraint("Horizontal", 0, 3, 1, 3),
    Sketcher.Constraint("Horizontal", 1, 3, 2, 3),
    Sketcher.Constraint("Horizontal", 2, 3, 3, 3),
    Sketcher.Constraint("Horizontal", 3, 3, 4, 3),
    Sketcher.Constraint("Horizontal", 6, 3, 7, 3),
    Sketcher.Constraint("Horizontal", 7, 3, 8, 3),
    Sketcher.Constraint("Horizontal", 8, 3, 9, 3),
    Sketcher.Constraint("Horizontal", 11, 3, 12, 3),
    Sketcher.Constraint("Horizontal", 12, 3, 13, 3),
    Sketcher.Constraint("Horizontal", 13, 3, 14, 3),
    Sketcher.Constraint("Horizontal", 16, 3, 17, 3),
    Sketcher.Constraint("Horizontal", 17, 3, 18, 3),
    Sketcher.Constraint("Horizontal", 18, 3, 19, 3),
    Sketcher.Constraint("Horizontal", 10, 3, 26, 3),
    Sketcher.Constraint("Horizontal", 15, 3, 27, 3),
    Sketcher.Constraint("Horizontal", 20, 3, 28, 3),
    Sketcher.Constraint("Vertical", 0, 3, 6, 3),
    Sketcher.Constraint("Vertical", 1, 3, 7, 3),
    Sketcher.Constraint("Vertical", 2, 3, 8, 3),
    Sketcher.Constraint("Vertical", 6, 3, 11, 3),
    Sketcher.Constraint("Vertical", 7, 3, 12, 3),
    Sketcher.Constraint("Vertical", 8, 3, 13, 3),
    Sketcher.Constraint("Vertical", 11, 3, 16, 3),
    Sketcher.Constraint("Vertical", 12, 3, 17, 3),
    Sketcher.Constraint("Vertical", 13, 3, 18, 3),
    Sketcher.Constraint("Vertical", 16, 3, 21, 3),
    Sketcher.Constraint("Vertical", 17, 3, 22, 3),
    Sketcher.Constraint("Vertical", 18, 3, 23, 3),
    Sketcher.Constraint("Vertical", 4, 3, 26, 3),
    Sketcher.Constraint("Vertical", 26, 3, 27, 3),
    Sketcher.Constraint("Vertical", 27, 3, 28, 3),
    Sketcher.Constraint("Vertical", 28, 3, 29, 3),
    Sketcher.Constraint("Diameter", 0, 7.0),
    Sketcher.Constraint("DistanceY", -1, 1, 0, 3, 32.0),
    Sketcher.Constraint("DistanceY", -1, 1, 6, 3, 24.0),
    Sketcher.Constraint("DistanceY", -1, 1, 11, 3, 16.0),
    Sketcher.Constraint("DistanceY", -1, 1, 16, 3, 8.0),
    Sketcher.Constraint("DistanceX", 4, 3, -1, 1, 36.5),
    Sketcher.Constraint("DistanceX", 1, 3, -1, 1, 18.25),
    Sketcher.Constraint("DistanceX", 0, 3, -1, 1, 27.375),
    Sketcher.Constraint("DistanceX", 2, 3, -1, 1, 9.125),
])
pocket1 = body.newObject("PartDesign::Pocket", "Pocket")
pocket1.Profile = sketch6
pocket1.Type = "ThroughAll"
pocket1.Midplane = True

# Sketch on YZ plane
sketch7 = body.newObject("Sketcher::SketchObject", "Sketch006")
sketch7.AttachmentSupport = (doc.getObject("YZ_Plane"), [""])
sketch7.MapMode = "FlatFace"
sketch7.AttachmentOffset = App.Placement(Vector(0, 0, -45), App.Rotation())
add_polygon(sketch7, [(28, 10), (-28, 10), (-28, 1), (28, 1)])  # lines 0-3
sketch7.addGeometry(Part.Circle(Vector(-6.5, 5.5, 0), Vector(0, 0, 1), 1.5), False)  # 4
sketch7.addGeometry(Part.Circle(Vector(6.5, 5.5, 0), Vector(0, 0, 1), 1.5), False)  # 5
sketch7.addConstraint([
    Sketcher.Constraint("Horizontal", 0),
    Sketcher.Constraint("Vertical", 1),
    Sketcher.Constraint("Horizontal", 2),
    Sketcher.Constraint("Vertical", 3),
    Sketcher.Constraint("Equal", 4, 5),
    Sketcher.Constraint("Symmetric", 4, 3, 5, 3, -2),
    Sketcher.Constraint("Diameter", 4, 3.0),
    Sketcher.Constraint("DistanceX", 0, 2, 0, 1, 56.0),
    Sketcher.Constraint("DistanceY", 1, 2, 1, 1, 9.0),
    Sketcher.Constraint("DistanceX", 0, 2, -1, 1, 28.0),
    Sketcher.Constraint("DistanceY", -1, 1, 0, 2, 10.0),
    Sketcher.Constraint("DistanceX", 4, 3, 5, 3, 13.0),
    Sketcher.Constraint("DistanceY", -1, 1, 4, 3, 5.5),
])
pad5 = body.newObject("PartDesign::Pad", "Pad004")
pad5.Profile = sketch7
pad5.Type = "UpToFirst"

# Sketch on YZ plane
sketch8 = body.newObject("Sketcher::SketchObject", "Sketch007")
sketch8.AttachmentSupport = (doc.getObject("YZ_Plane"), [""])
sketch8.MapMode = "FlatFace"
sketch8.AttachmentOffset = App.Placement(Vector(0, 0, 45), App.Rotation())
add_polygon(sketch8, [(28, 1), (-28, 1), (-28, 10), (28, 10)])  # lines 0-3
sketch8.addGeometry(Part.Circle(Vector(-6.5, 5.5, 0), Vector(0, 0, 1), 1.5), False)  # 4
sketch8.addGeometry(Part.Circle(Vector(6.5, 5.5, 0), Vector(0, 0, 1), 1.5), False)  # 5
sketch8.addConstraint([
    Sketcher.Constraint("Horizontal", 0),
    Sketcher.Constraint("Vertical", 1),
    Sketcher.Constraint("Horizontal", 2),
    Sketcher.Constraint("Vertical", 3),
    Sketcher.Constraint("Equal", 4, 5),
    Sketcher.Constraint("Symmetric", 4, 3, 5, 3, -2),
    Sketcher.Constraint("Diameter", 4, 3.0),
    Sketcher.Constraint("DistanceX", 0, 2, 0, 1, 56.0),
    Sketcher.Constraint("DistanceY", 1, 1, 1, 2, 9.0),
    Sketcher.Constraint("DistanceX", 0, 2, -1, 1, 28.0),
    Sketcher.Constraint("DistanceY", -1, 1, 0, 2, 1.0),
    Sketcher.Constraint("DistanceX", 4, 3, 5, 3, 13.0),
    Sketcher.Constraint("DistanceY", -1, 1, 4, 3, 5.5),
])
pad6 = body.newObject("PartDesign::Pad", "Pad005")
pad6.Profile = sketch8
pad6.Type = "UpToFirst"
pad6.Reversed = True

# Sketch on YZ plane
sketch9 = body.newObject("Sketcher::SketchObject", "Sketch008")
sketch9.AttachmentSupport = (doc.getObject("YZ_Plane"), [""])
sketch9.MapMode = "FlatFace"
sketch9.AttachmentOffset = App.Placement(Vector(0, 0, 45), App.Rotation())
sketch9.addGeometry([
    Part.Circle(Vector(-6.5, 5.5, 0), Vector(0, 0, 1), 1.5),
    Part.Circle(Vector(6.5, 5.5, 0), Vector(0, 0, 1), 1.5),
], False)
sketch9.addConstraint([
    Sketcher.Constraint("Equal", 0, 1),
    Sketcher.Constraint("Symmetric", 0, 3, 1, 3, -2),
    Sketcher.Constraint("Diameter", 0, 3.0),
    Sketcher.Constraint("DistanceX", 0, 3, 1, 3, 13.0),
    Sketcher.Constraint("DistanceY", -1, 1, 0, 3, 5.5),
])
pocket2 = body.newObject("PartDesign::Pocket", "Pocket001")
pocket2.Profile = sketch9
pocket2.Type = "ThroughAll"
pocket2.Midplane = True

# Sketch on YZ plane
sketch10 = body.newObject("Sketcher::SketchObject", "Sketch009")
sketch10.AttachmentSupport = (doc.getObject("YZ_Plane"), [""])
sketch10.MapMode = "FlatFace"
sketch10.AttachmentOffset = App.Placement(Vector(0, 0, -50), App.Rotation())
sketch10.addGeometry([
    Part.Circle(Vector(6.5, 5.5, 0), Vector(0, 0, 1), 1.5),
    Part.Circle(Vector(6.5, 5.5, 0), Vector(0, 0, 1), 1.2),
    Part.Circle(Vector(-6.5, 5.5, 0), Vector(0, 0, 1), 1.5),
    Part.Circle(Vector(-6.5, 5.5, 0), Vector(0, 0, 1), 1.2),
], False)
sketch10.addConstraint([
    Sketcher.Constraint("Coincident", 1, 3, 0, 3),
    Sketcher.Constraint("Coincident", 3, 3, 2, 3),
    Sketcher.Constraint("Equal", 0, 2),
    Sketcher.Constraint("Equal", 1, 3),
    Sketcher.Constraint("Symmetric", 0, 3, 2, 3, -2),
    Sketcher.Constraint("Diameter", 0, 3.0),
    Sketcher.Constraint("Diameter", 1, 2.4),
    Sketcher.Constraint("DistanceX", 2, 3, 0, 3, 13.0),
    Sketcher.Constraint("DistanceY", -1, 1, 0, 3, 5.5),
])
pad7 = body.newObject("PartDesign::Pad", "Pad006")
pad7.Profile = sketch10
pad7.Length = 8.5

# Sketch on YZ plane
sketch11 = body.newObject("Sketcher::SketchObject", "Sketch010")
sketch11.AttachmentSupport = (doc.getObject("YZ_Plane"), [""])
sketch11.MapMode = "FlatFace"
sketch11.AttachmentOffset = App.Placement(Vector(0, 0, 50), App.Rotation())
sketch11.addGeometry([
    Part.Circle(Vector(6.5, 5.5, 0), Vector(0, 0, 1), 1.5),
    Part.Circle(Vector(6.5, 5.5, 0), Vector(0, 0, 1), 1.2),
    Part.Circle(Vector(-6.5, 5.5, 0), Vector(0, 0, 1), 1.5),
    Part.Circle(Vector(-6.5, 5.5, 0), Vector(0, 0, 1), 1.2),
], False)
sketch11.addConstraint([
    Sketcher.Constraint("Coincident", 1, 3, 0, 3),
    Sketcher.Constraint("Coincident", 3, 3, 2, 3),
    Sketcher.Constraint("Equal", 0, 2),
    Sketcher.Constraint("Equal", 1, 3),
    Sketcher.Constraint("Symmetric", 0, 3, 2, 3, -2),
    Sketcher.Constraint("Diameter", 0, 3.0),
    Sketcher.Constraint("Diameter", 1, 2.4),
    Sketcher.Constraint("DistanceX", 2, 3, 0, 3, 13.0),
    Sketcher.Constraint("DistanceY", -1, 1, 0, 3, 5.5),
])
pad8 = body.newObject("PartDesign::Pad", "Pad007")
pad8.Profile = sketch11
pad8.Length = 8.5
pad8.Reversed = True

doc.recompute()
